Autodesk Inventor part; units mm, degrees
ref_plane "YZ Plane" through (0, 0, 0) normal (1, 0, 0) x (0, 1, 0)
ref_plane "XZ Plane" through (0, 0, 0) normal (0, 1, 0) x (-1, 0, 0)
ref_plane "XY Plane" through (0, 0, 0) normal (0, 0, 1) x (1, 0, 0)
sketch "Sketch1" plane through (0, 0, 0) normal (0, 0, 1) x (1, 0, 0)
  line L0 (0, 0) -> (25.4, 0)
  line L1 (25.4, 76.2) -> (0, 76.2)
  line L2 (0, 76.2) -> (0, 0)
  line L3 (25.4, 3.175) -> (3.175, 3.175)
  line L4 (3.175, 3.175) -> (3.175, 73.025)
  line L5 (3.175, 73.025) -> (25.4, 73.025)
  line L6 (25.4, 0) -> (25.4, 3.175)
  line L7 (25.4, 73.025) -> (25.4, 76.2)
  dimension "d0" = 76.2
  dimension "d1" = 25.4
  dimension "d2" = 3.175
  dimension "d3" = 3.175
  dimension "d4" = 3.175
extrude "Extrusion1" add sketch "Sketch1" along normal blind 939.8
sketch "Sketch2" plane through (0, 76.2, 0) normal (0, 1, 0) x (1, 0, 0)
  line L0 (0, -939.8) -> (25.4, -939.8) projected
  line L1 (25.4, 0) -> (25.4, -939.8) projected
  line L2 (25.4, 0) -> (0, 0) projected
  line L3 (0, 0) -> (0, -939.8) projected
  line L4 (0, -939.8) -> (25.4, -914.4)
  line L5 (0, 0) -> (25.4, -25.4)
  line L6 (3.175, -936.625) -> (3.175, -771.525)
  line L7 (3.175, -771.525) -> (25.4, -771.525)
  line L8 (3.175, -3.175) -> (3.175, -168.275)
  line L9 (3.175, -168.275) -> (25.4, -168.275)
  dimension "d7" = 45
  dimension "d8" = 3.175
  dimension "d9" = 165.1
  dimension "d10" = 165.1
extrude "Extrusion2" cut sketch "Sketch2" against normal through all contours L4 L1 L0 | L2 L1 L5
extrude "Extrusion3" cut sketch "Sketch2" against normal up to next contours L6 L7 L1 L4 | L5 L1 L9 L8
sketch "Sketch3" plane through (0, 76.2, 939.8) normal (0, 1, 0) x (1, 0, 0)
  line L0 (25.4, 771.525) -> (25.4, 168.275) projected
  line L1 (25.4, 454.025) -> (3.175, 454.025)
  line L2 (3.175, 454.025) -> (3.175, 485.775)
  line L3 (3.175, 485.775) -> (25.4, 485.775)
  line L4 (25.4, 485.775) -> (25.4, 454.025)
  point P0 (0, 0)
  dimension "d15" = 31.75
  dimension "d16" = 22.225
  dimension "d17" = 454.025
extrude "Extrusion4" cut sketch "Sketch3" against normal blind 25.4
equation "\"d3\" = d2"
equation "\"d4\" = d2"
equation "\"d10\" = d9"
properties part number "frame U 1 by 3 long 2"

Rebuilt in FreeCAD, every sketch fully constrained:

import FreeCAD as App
import Part
import Sketcher
from FreeCAD import Vector
Q = App.Units.Quantity

doc = App.newDocument("Part")
body = doc.addObject("PartDesign::Body", "Body")

sketch1 = body.newObject("Sketcher::SketchObject", "Sketch")
sketch1.AttachmentSupport = (doc.getObject("XY_Plane"), [""])
sketch1.MapMode = "FlatFace"
sketch1.addGeometry(Part.LineSegment(Vector(0, 76.2, 0), Vector(0, 0, 0)), False)
sketch1.addGeometry(Part.LineSegment(Vector(0, 0, 0), Vector(25.4, 0, 0)), False)
sketch1.addGeometry(Part.LineSegment(Vector(25.4, 0, 0), Vector(25.4, 3.175, 0)), False)
sketch1.addGeometry(Part.LineSegment(Vector(25.4, 3.175, 0), Vector(3.175, 3.175, 0)), False)
sketch1.addGeometry(Part.LineSegment(Vector(3.175, 3.175, 0), Vector(3.175, 73.025, 0)), False)
sketch1.addGeometry(Part.LineSegment(Vector(3.175, 73.025, 0), Vector(25.4, 73.025, 0)), False)
sketch1.addGeometry(Part.LineSegment(Vector(25.4, 73.025, 0), Vector(25.4, 76.2, 0)), False)
sketch1.addGeometry(Part.LineSegment(Vector(25.4, 76.2, 0), Vector(0, 76.2, 0)), False)
sketch1.addConstraint(Sketcher.Constraint("Coincident", 0, 2, 1, 1))
sketch1.addConstraint(Sketcher.Constraint("Coincident", 1, 2, 2, 1))
sketch1.addConstraint(Sketcher.Constraint("Coincident", 2, 2, 3, 1))
sketch1.addConstraint(Sketcher.Constraint("Coincident", 3, 2, 4, 1))
sketch1.addConstraint(Sketcher.Constraint("Coincident", 4, 2, 5, 1))
sketch1.addConstraint(Sketcher.Constraint("Coincident", 5, 2, 6, 1))
sketch1.addConstraint(Sketcher.Constraint("Coincident", 6, 2, 7, 1))
sketch1.addConstraint(Sketcher.Constraint("Coincident", 7, 2, 0, 1))
sketch1.addConstraint(Sketcher.Constraint("Vertical", 0))
sketch1.addConstraint(Sketcher.Constraint("Horizontal", 1))
sketch1.addConstraint(Sketcher.Constraint("Vertical", 2))
sketch1.addConstraint(Sketcher.Constraint("Horizontal", 3))
sketch1.addConstraint(Sketcher.Constraint("Vertical", 4))
sketch1.addConstraint(Sketcher.Constraint("Horizontal", 5))
sketch1.addConstraint(Sketcher.Constraint("Vertical", 6))
sketch1.addConstraint(Sketcher.Constraint("Horizontal", 7))
sketch1.addConstraint(Sketcher.Constraint("Coincident", 0, 2, -1, 1))
sketch1.addConstraint(Sketcher.Constraint("Vertical", 2, 2, 5, 2))
sketch1.addConstraint(Sketcher.Constraint("Equal", 2, 6))
sketch1.addConstraint(Sketcher.Constraint("DistanceX", 1, 1, 1, 2, Q("1 in")))
sketch1.addConstraint(Sketcher.Constraint("DistanceY", 0, 2, 0, 1, Q("3 in")))
sketch1.addConstraint(Sketcher.Constraint("DistanceY", 2, 1, 2, 2, Q("0.125 in")))
sketch1.addConstraint(Sketcher.Constraint("DistanceX", -1, 1, 3, 2, Q("0.125 in")))
pad1 = body.newObject("PartDesign::Pad", "Pad")
pad1.Profile = sketch1
pad1.Length = Q("37 in")

sketch2 = body.newObject("Sketcher::SketchObject", "Sketch001")
sketch2.AttachmentSupport = (doc.getObject("XZ_Plane"), [""])
sketch2.MapMode = "FlatFace"
sketch2.AttachmentOffset = App.Placement(Vector(0, 0, -3 * 25.4), App.Rotation())
sketch2.addGeometry(Part.LineSegment(Vector(25.4, 914.4, 0), Vector(0, 939.8, 0)), False)
sketch2.addGeometry(Part.LineSegment(Vector(0, 939.8, 0), Vector(25.4, 939.8, 0)), False)
sketch2.addGeometry(Part.LineSegment(Vector(25.4, 939.8, 0), Vector(25.4, 914.4, 0)), False)
sketch2.addGeometry(Part.LineSegment(Vector(25.4, 0, 0), Vector(0, 0, 0)), False)
sketch2.addGeometry(Part.LineSegment(Vector(0, 0, 0), Vector(25.4, 25.4, 0)), False)
sketch2.addGeometry(Part.LineSegment(Vector(25.4, 25.4, 0), Vector(25.4, 0, 0)), False)
sketch2.addConstraint(Sketcher.Constraint("Coincident", 0, 2, 1, 1))
sketch2.addConstraint(Sketcher.Constraint("Coincident", 1, 2, 2, 1))
sketch2.addConstraint(Sketcher.Constraint("Coincident", 2, 2, 0, 1))
sketch2.addConstraint(Sketcher.Constraint("Coincident", 3, 2, 4, 1))
sketch2.addConstraint(Sketcher.Constraint("Coincident", 4, 2, 5, 1))
sketch2.addConstraint(Sketcher.Constraint("Coincident", 5, 2, 3, 1))
sketch2.addConstraint(Sketcher.Constraint("Horizontal", 1))
sketch2.addConstraint(Sketcher.Constraint("Vertical", 2))
sketch2.addConstraint(Sketcher.Constraint("Horizontal", 3))
sketch2.addConstraint(Sketcher.Constraint("Vertical", 5))
sketch2.addConstraint(Sketcher.Constraint("Coincident", 3, 2, -1, 1))
sketch2.addConstraint(Sketcher.Constraint("PointOnObject", 0, 2, -2))
sketch2.addConstraint(Sketcher.Constraint("Perpendicular", 0, 4))
sketch2.addConstraint(Sketcher.Constraint("Vertical", 2, 2, 4, 2))
sketch2.addConstraint(Sketcher.Constraint("Equal", 3, 2))
sketch2.addConstraint(Sketcher.Constraint("DistanceX", 1, 1, 1, 2, Q("1 in")))
sketch2.addConstraint(Sketcher.Constraint("DistanceY", -1, 1, 0, 2, Q("37 in")))
pocket1 = body.newObject("PartDesign::Pocket", "Pocket")
pocket1.Profile = sketch2
pocket1.Type = "ThroughAll"
pocket1.Reversed = True

sketch3 = body.newObject("Sketcher::SketchObject", "Sketch002")
sketch3.AttachmentSupport = (doc.getObject("XZ_Plane"), [""])
sketch3.MapMode = "FlatFace"
sketch3.AttachmentOffset = App.Placement(Vector(0, 0, -3 * 25.4), App.Rotation())
sketch3.addGeometry(Part.LineSegment(Vector(3.175, 771.525, 0), Vector(3.175, 936.625, 0)), False)
sketch3.addGeometry(Part.LineSegment(Vector(3.175, 936.625, 0), Vector(25.4, 914.4, 0)), False)
sketch3.addGeometry(Part.LineSegment(Vector(25.4, 914.4, 0), Vector(25.4, 771.525, 0)), False)
sketch3.addGeometry(Part.LineSegment(Vector(25.4, 771.525, 0), Vector(3.175, 771.525, 0)), False)
sketch3.addGeometry(Part.LineSegment(Vector(25.4, 25.4, 0), Vector(3.175, 3.175, 0)), False)
sketch3.addGeometry(Part.LineSegment(Vector(3.175, 3.175, 0), Vector(3.175, 168.275, 0)), False)
sketch3.addGeometry(Part.LineSegment(Vector(3.175, 168.275, 0), Vector(25.4, 168.275, 0)), False)
sketch3.addGeometry(Part.LineSegment(Vector(25.4, 168.275, 0), Vector(25.4, 25.4, 0)), False)
sketch3.addConstraint(Sketcher.Constraint("Coincident", 0, 2, 1, 1))
sketch3.addConstraint(Sketcher.Constraint("Coincident", 1, 2, 2, 1))
sketch3.addConstraint(Sketcher.Constraint("Coincident", 2, 2, 3, 1))
sketch3.addConstraint(Sketcher.Constraint("Coincident", 3, 2, 0, 1))
sketch3.addConstraint(Sketcher.Constraint("Coincident", 4, 2, 5, 1))
sketch3.addConstraint(Sketcher.Constraint("Coincident", 5, 2, 6, 1))
sketch3.addConstraint(Sketcher.Constraint("Coincident", 6, 2, 7, 1))
sketch3.addConstraint(Sketcher.Constraint("Coincident", 7, 2, 4, 1))
sketch3.addConstraint(Sketcher.Constraint("Vertical", 0))
sketch3.addConstraint(Sketcher.Constraint("Vertical", 2))
sketch3.addConstraint(Sketcher.Constraint("Horizontal", 3))
sketch3.addConstraint(Sketcher.Constraint("Vertical", 5))
sketch3.addConstraint(Sketcher.Constraint("Horizontal", 6))
sketch3.addConstraint(Sketcher.Constraint("Vertical", 7))
sketch3.addConstraint(Sketcher.Constraint("Perpendicular", 1, 4))
sketch3.addConstraint(Sketcher.Constraint("Vertical", 3, 2, 4, 2))
sketch3.addConstraint(Sketcher.Constraint("Vertical", 2, 2, 6, 2))
sketch3.addConstraint(Sketcher.Constraint("Equal", 0, 5))
sketch3.addConstraint(Sketcher.Constraint("Equal", 2, 7))
sketch3.addConstraint(Sketcher.Constraint("DistanceY", 0, 1, 0, 2, Q("6.5 in")))
sketch3.addConstraint(Sketcher.Constraint("DistanceX", -1, 1, 0, 2, Q("0.125 in")))
sketch3.addConstraint(Sketcher.Constraint("DistanceY", -1, 1, 4, 2, Q("0.125 in")))
sketch3.addConstraint(Sketcher.Constraint("DistanceX", -1, 1, 1, 2, Q("1 in")))
sketch3.addConstraint(Sketcher.Constraint("DistanceY", -1, 1, 1, 2, Q("36 in")))
pocket2 = body.newObject("PartDesign::Pocket", "Pocket001")
pocket2.Profile = sketch3
pocket2.Type = "UpToFirst"
pocket2.Reversed = True

sketch4 = body.newObject("Sketcher::SketchObject", "Sketch003")
sketch4.AttachmentSupport = (doc.getObject("XZ_Plane"), [""])
sketch4.MapMode = "FlatFace"
sketch4.AttachmentOffset = App.Placement(Vector(0, 0, -3 * 25.4), App.Rotation())
sketch4.addGeometry(Part.LineSegment(Vector(25.4, 485.775, 0), Vector(25.4, 454.025, 0)), False)
sketch4.addGeometry(Part.LineSegment(Vector(25.4, 454.025, 0), Vector(3.175, 454.025, 0)), False)
sketch4.addGeometry(Part.LineSegment(Vector(3.175, 454.025, 0), Vector(3.175, 485.775, 0)), False)
sketch4.addGeometry(Part.LineSegment(Vector(3.175, 485.775, 0), Vector(25.4, 485.775, 0)), False)
sketch4.addConstraint(Sketcher.Constraint("Coincident", 0, 2, 1, 1))
sketch4.addConstraint(Sketcher.Constraint("Coincident", 1, 2, 2, 1))
sketch4.addConstraint(Sketcher.Constraint("Coincident", 2, 2, 3, 1))
sketch4.addConstraint(Sketcher.Constraint("Coincident", 3, 2, 0, 1))
sketch4.addConstraint(Sketcher.Constraint("Vertical", 0))
sketch4.addConstraint(Sketcher.Constraint("Horizontal", 1))
sketch4.addConstraint(Sketcher.Constraint("Vertical", 2))
sketch4.addConstraint(Sketcher.Constraint("Horizontal", 3))
sketch4.addConstraint(Sketcher.Constraint("DistanceY", 0, 2, 0, 1, Q("1.25 in")))
sketch4.addConstraint(Sketcher.Constraint("DistanceX", 1, 2, 1, 1, Q("0.875 in")))
sketch4.addConstraint(Sketcher.Constraint("DistanceY", -1, 1, 0, 2, Q("17.875 in")))
sketch4.addConstraint(Sketcher.Constraint("DistanceX", -1, 1, 0, 2, Q("1 in")))
pocket3 = body.newObject("PartDesign::Pocket", "Pocket002")
pocket3.Profile = sketch4
pocket3.Length = Q("1 in")
pocket3.Reversed = True

doc.recompute()
